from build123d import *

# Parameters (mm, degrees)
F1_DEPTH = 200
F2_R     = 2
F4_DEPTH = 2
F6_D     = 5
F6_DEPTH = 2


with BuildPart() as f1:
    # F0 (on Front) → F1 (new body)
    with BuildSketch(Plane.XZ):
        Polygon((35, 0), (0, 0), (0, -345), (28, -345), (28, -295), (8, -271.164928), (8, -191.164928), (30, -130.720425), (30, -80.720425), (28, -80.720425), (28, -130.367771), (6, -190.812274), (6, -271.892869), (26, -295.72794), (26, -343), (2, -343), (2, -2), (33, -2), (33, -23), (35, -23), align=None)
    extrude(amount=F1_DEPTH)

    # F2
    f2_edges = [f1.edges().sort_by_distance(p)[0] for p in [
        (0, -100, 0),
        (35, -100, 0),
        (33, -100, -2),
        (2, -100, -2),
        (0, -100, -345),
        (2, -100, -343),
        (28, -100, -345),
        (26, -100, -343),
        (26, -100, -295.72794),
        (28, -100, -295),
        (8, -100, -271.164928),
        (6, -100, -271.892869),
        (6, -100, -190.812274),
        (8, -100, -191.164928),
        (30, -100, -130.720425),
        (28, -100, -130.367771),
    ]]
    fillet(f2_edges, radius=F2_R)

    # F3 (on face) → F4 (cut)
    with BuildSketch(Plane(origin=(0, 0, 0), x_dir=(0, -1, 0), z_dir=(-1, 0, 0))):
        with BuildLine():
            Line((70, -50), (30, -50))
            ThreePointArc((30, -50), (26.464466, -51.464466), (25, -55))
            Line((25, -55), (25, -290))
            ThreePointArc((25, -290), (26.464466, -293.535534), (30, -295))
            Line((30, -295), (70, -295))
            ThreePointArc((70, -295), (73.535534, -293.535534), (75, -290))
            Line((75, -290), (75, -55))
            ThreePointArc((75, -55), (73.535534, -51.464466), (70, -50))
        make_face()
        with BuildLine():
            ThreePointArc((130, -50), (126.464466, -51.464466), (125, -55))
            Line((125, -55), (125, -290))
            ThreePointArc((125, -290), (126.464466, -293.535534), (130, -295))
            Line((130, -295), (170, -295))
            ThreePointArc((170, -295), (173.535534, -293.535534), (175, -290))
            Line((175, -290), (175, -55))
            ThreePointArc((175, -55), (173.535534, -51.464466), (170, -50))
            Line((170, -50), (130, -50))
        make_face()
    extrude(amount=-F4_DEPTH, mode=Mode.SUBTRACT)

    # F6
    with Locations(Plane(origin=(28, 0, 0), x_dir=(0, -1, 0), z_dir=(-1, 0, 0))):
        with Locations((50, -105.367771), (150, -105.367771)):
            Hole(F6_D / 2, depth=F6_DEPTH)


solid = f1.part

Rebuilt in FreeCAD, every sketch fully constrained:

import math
import FreeCAD as App
import Part
import Sketcher

V = App.Vector
Q = App.Units.Quantity


def edges_at(feature, points):
    """Names of the edges that pass closest to the given points."""
    edges = feature.Shape.Edges
    near = lambda p: min(range(len(edges)), key=lambda i: edges[i].distToShape(Part.Vertex(*p))[0])
    return sorted({f"Edge{near(p) + 1}" for p in points})

doc = App.newDocument("Part")
params = doc.addObject("Spreadsheet::Sheet", "Params")
for row, (alias, value) in enumerate([
    ("sketch1_width", "35 mm"),
    ("sketch1_width2", "28 mm"),
    ("sketch1_width3", "2 mm"),
    ("sketch1_width4", "24 mm"),
    ("sketch1_height", "345 mm"),
    ("pad1_length", "200 mm"),
    ("fillet_radius", "2 mm"),
    ("sketch2_radius", "5 mm"),
    ("sketch2_width", "40 mm"),
    ("sketch2_height", "235 mm"),
    ("pocket1_length", "2 mm"),
    ("sketch3_diameter", "5 mm"),
    ("hole_diameter", "5 mm"),
    ("hole_depth", "2 mm"),
], start=1):
    params.set(f"A{row}", alias)
    params.set(f"B{row}", "=" + value)
    params.setAlias(f"B{row}", alias)

body = doc.addObject("PartDesign::Body", "Body")

sketch1 = doc.addObject("Sketcher::SketchObject", "Sketch")
body.addObject(sketch1)
sketch1.AttachmentSupport = (doc.XZ_Plane, [""])
sketch1.MapMode = "FlatFace"
sketch1.addGeometry([
    Part.LineSegment(V(35, 0, 0), V(0, 0, 0)),
    Part.LineSegment(V(0, 0, 0), V(0, -345, 0)),
    Part.LineSegment(V(0, -345, 0), V(28, -345, 0)),
    Part.LineSegment(V(28, -345, 0), V(28, -295, 0)),
    Part.LineSegment(V(28, -295, 0), V(8, -271.2, 0)),
    Part.LineSegment(V(8, -271.2, 0), V(8, -191.2, 0)),
    Part.LineSegment(V(8, -191.2, 0), V(30, -130.7, 0)),
    Part.LineSegment(V(30, -130.7, 0), V(30, -80.7, 0)),
    Part.LineSegment(V(30, -80.7, 0), V(28, -80.7, 0)),
    Part.LineSegment(V(28, -80.7, 0), V(28, -130.4, 0)),
    Part.LineSegment(V(28, -130.4, 0), V(6, -190.8, 0)),
    Part.LineSegment(V(6, -190.8, 0), V(6, -271.9, 0)),
    Part.LineSegment(V(6, -271.9, 0), V(26, -295.7, 0)),
    Part.LineSegment(V(26, -295.7, 0), V(26, -343, 0)),
    Part.LineSegment(V(26, -343, 0), V(2, -343, 0)),
    Part.LineSegment(V(2, -343, 0), V(2, -2, 0)),
    Part.LineSegment(V(2, -2, 0), V(33, -2, 0)),
    Part.LineSegment(V(33, -2, 0), V(33, -23, 0)),
    Part.LineSegment(V(33, -23, 0), V(35, -23, 0)),
    Part.LineSegment(V(35, -23, 0), V(35, 0, 0)),
], False)
sketch1.addConstraint([
    Sketcher.Constraint("Coincident", 0, 2, 1, 1),
    Sketcher.Constraint("Coincident", 1, 2, 2, 1),
    Sketcher.Constraint("Coincident", 2, 2, 3, 1),
    Sketcher.Constraint("Coincident", 3, 2, 4, 1),
    Sketcher.Constraint("Coincident", 4, 2, 5, 1),
    Sketcher.Constraint("Coincident", 5, 2, 6, 1),
    Sketcher.Constraint("Coincident", 6, 2, 7, 1),
    Sketcher.Constraint("Coincident", 7, 2, 8, 1),
    Sketcher.Constraint("Coincident", 8, 2, 9, 1),
    Sketcher.Constraint("Coincident", 9, 2, 10, 1),
    Sketcher.Constraint("Coincident", 10, 2, 11, 1),
    Sketcher.Constraint("Coincident", 11, 2, 12, 1),
    Sketcher.Constraint("Coincident", 12, 2, 13, 1),
    Sketcher.Constraint("Coincident", 13, 2, 14, 1),
    Sketcher.Constraint("Coincident", 14, 2, 15, 1),
    Sketcher.Constraint("Coincident", 15, 2, 16, 1),
    Sketcher.Constraint("Coincident", 16, 2, 17, 1),
    Sketcher.Constraint("Coincident", 17, 2, 18, 1),
    Sketcher.Constraint("Coincident", 18, 2, 19, 1),
    Sketcher.Constraint("Coincident", 19, 2, 0, 1),
    Sketcher.Constraint("Horizontal", 0),
    Sketcher.Constraint("Vertical", 1),
    Sketcher.Constraint("Horizontal", 2),
    Sketcher.Constraint("Vertical", 3),
    Sketcher.Constraint("Vertical", 5),
    Sketcher.Constraint("Vertical", 7),
    Sketcher.Constraint("Horizontal", 8),
    Sketcher.Constraint("Vertical", 9),
    Sketcher.Constraint("Vertical", 11),
    Sketcher.Constraint("Vertical", 13),
    Sketcher.Constraint("Horizontal", 14),
    Sketcher.Constraint("Vertical", 15),
    Sketcher.Constraint("Horizontal", 16),
    Sketcher.Constraint("Vertical", 17),
    Sketcher.Constraint("Horizontal", 18),
    Sketcher.Constraint("Vertical", 19),
    Sketcher.Constraint("Coincident", 0, 2, -1, 1),
    Sketcher.Constraint("Parallel", 6, 10),
    Sketcher.Constraint("Parallel", 4, 12),
    Sketcher.Constraint("Vertical", 3, 2, 8, 2),
    Sketcher.Constraint("Equal", 8, 18),
    Sketcher.Constraint("Equal", 3, 7),
    Sketcher.Constraint("Equal", 6, 10),
    Sketcher.Constraint("Equal", 4, 12),
    Sketcher.Constraint("DistanceX", 0, 2, 0, 1, Q("35 mm")),
    Sketcher.Constraint("DistanceX", 2, 1, 2, 2, Q("28 mm")),
    Sketcher.Constraint("DistanceX", 8, 2, 8, 1, Q("2 mm")),
    Sketcher.Constraint("DistanceX", 14, 2, 14, 1, Q("24 mm")),
    Sketcher.Constraint("DistanceY", 1, 2, 1, 1, Q("345 mm")),
    Sketcher.Constraint("DistanceY", 3, 1, 3, 2, Q("50 mm")),
    Sketcher.Constraint("DistanceY", 5, 1, 5, 2, Q("80 mm")),
    Sketcher.Constraint("DistanceY", 15, 1, 15, 2, Q("341 mm")),
    Sketcher.Constraint("DistanceY", 17, 2, 17, 1, Q("21 mm")),
    Sketcher.Constraint("DistanceY", 19, 1, 19, 2, Q("23 mm")),
    Sketcher.Constraint("Angle", 4, Q("130 deg")),
    Sketcher.Constraint("Angle", 6, Q("70 deg")),
    Sketcher.Constraint("DistanceX", -1, 1, 4, 2, Q("8 mm")),
    Sketcher.Constraint("DistanceY", 13, 2, 13, 1, Q("47.27206 mm")),
    Sketcher.Constraint("DistanceY", 9, 2, 9, 1, Q("49.647346 mm")),
])
sketch1.setExpression("Constraints[44]", "Params.sketch1_width")
sketch1.setExpression("Constraints[45]", "Params.sketch1_width2")
sketch1.setExpression("Constraints[46]", "Params.sketch1_width3")
sketch1.setExpression("Constraints[47]", "Params.sketch1_width4")
sketch1.setExpression("Constraints[48]", "Params.sketch1_height")
pad1 = doc.addObject("PartDesign::Pad", "Pad")
body.addObject(pad1)
pad1.Profile = sketch1
pad1.setExpression("Length", "Params.pad1_length")
doc.recompute()

fillet = doc.addObject("PartDesign::Fillet", "Fillet")
body.addObject(fillet)
fillet.Base = (pad1, edges_at(pad1, [
    (0, -100, 0),
    (35, -100, 0),
    (33, -100, -2),
    (2, -100, -2),
    (0, -100, -345),
    (2, -100, -343),
    (28, -100, -345),
    (26, -100, -343),
    (26, -100, -295.728),
    (28, -100, -295),
    (8, -100, -271.165),
    (6, -100, -271.893),
    (6, -100, -190.812),
    (8, -100, -191.165),
    (30, -100, -130.72),
    (28, -100, -130.368),
]))
fillet.setExpression("Radius", "Params.fillet_radius")

sketch2 = doc.addObject("Sketcher::SketchObject", "Sketch001")
body.addObject(sketch2)
sketch2.AttachmentSupport = (doc.YZ_Plane, [""])
sketch2.MapMode = "FlatFace"
sketch2.addGeometry([
    Part.LineSegment(V(-70, -50, 0), V(-30, -50, 0)),
    Part.ArcOfCircle(Part.Circle(V(-30, -55, 0), V(0, 0, 1), 5), math.radians(0), math.radians(90)),
    Part.LineSegment(V(-25, -55, 0), V(-25, -290, 0)),
    Part.ArcOfCircle(Part.Circle(V(-30, -290, 0), V(0, 0, 1), 5), math.radians(-90), math.radians(0)),
    Part.LineSegment(V(-30, -295, 0), V(-70, -295, 0)),
    Part.ArcOfCircle(Part.Circle(V(-70, -290, 0), V(0, 0, 1), 5), math.radians(180), math.radians(270)),
    Part.LineSegment(V(-75, -290, 0), V(-75, -55, 0)),
    Part.ArcOfCircle(Part.Circle(V(-70, -55, 0), V(0, 0, 1), 5), math.radians(90), math.radians(180)),
    Part.ArcOfCircle(Part.Circle(V(-130, -55, 0), V(0, 0, 1), 5), math.radians(0), math.radians(90)),
    Part.LineSegment(V(-125, -55, 0), V(-125, -290, 0)),
    Part.ArcOfCircle(Part.Circle(V(-130, -290, 0), V(0, 0, 1), 5), math.radians(-90), math.radians(0)),
    Part.LineSegment(V(-130, -295, 0), V(-170, -295, 0)),
    Part.ArcOfCircle(Part.Circle(V(-170, -290, 0), V(0, 0, 1), 5), math.radians(180), math.radians(270)),
    Part.LineSegment(V(-175, -290, 0), V(-175, -55, 0)),
    Part.ArcOfCircle(Part.Circle(V(-170, -55, 0), V(0, 0, 1), 5), math.radians(90), math.radians(180)),
    Part.LineSegment(V(-170, -50, 0), V(-130, -50, 0)),
], False)
sketch2.addConstraint([
    Sketcher.Constraint("Tangent", 0, 2, 1, 2),
    Sketcher.Constraint("Tangent", 1, 1, 2, 1),
    Sketcher.Constraint("Tangent", 2, 2, 3, 2),
    Sketcher.Constraint("Tangent", 3, 1, 4, 1),
    Sketcher.Constraint("Tangent", 4, 2, 5, 2),
    Sketcher.Constraint("Tangent", 5, 1, 6, 1),
    Sketcher.Constraint("Tangent", 6, 2, 7, 2),
    Sketcher.Constraint("Tangent", 7, 1, 0, 1),
    Sketcher.Constraint("Tangent", 8, 1, 9, 1),
    Sketcher.Constraint("Tangent", 9, 2, 10, 2),
    Sketcher.Constraint("Tangent", 10, 1, 11, 1),
    Sketcher.Constraint("Tangent", 11, 2, 12, 2),
    Sketcher.Constraint("Tangent", 12, 1, 13, 1),
    Sketcher.Constraint("Tangent", 13, 2, 14, 2),
    Sketcher.Constraint("Tangent", 14, 1, 15, 1),
    Sketcher.Constraint("Tangent", 15, 2, 8, 2),
    Sketcher.Constraint("Horizontal", 0),
    Sketcher.Constraint("Vertical", 2),
    Sketcher.Constraint("Horizontal", 4),
    Sketcher.Constraint("Vertical", 6),
    Sketcher.Constraint("Vertical", 9),
    Sketcher.Constraint("Horizontal", 11),
    Sketcher.Constraint("Vertical", 13),
    Sketcher.Constraint("Horizontal", 15),
    Sketcher.Constraint("Equal", 1, 3),
    Sketcher.Constraint("Equal", 3, 5),
    Sketcher.Constraint("Equal", 5, 7),
    Sketcher.Constraint("Equal", 7, 8),
    Sketcher.Constraint("Equal", 8, 10),
    Sketcher.Constraint("Equal", 10, 12),
    Sketcher.Constraint("Equal", 12, 14),
    Sketcher.Constraint("Horizontal", 7, 3, 8, 3),
    Sketcher.Constraint("Horizontal", 5, 3, 10, 3),
    Sketcher.Constraint("Equal", 4, 11),
    Sketcher.Constraint("Radius", 1, Q("5 mm")),
    Sketcher.Constraint("DistanceX", 0, 1, 0, 2, Q("40 mm")),
    Sketcher.Constraint("DistanceY", 2, 2, 2, 1, Q("235 mm")),
    Sketcher.Constraint("DistanceX", 1, 3, -1, 1, Q("30 mm")),
    Sketcher.Constraint("DistanceY", 1, 3, -1, 1, Q("55 mm")),
    Sketcher.Constraint("DistanceX", 8, 3, -1, 1, Q("130 mm")),
])
sketch2.setExpression("Constraints[34]", "Params.sketch2_radius")
sketch2.setExpression("Constraints[35]", "Params.sketch2_width")
sketch2.setExpression("Constraints[36]", "Params.sketch2_height")
pocket1 = doc.addObject("PartDesign::Pocket", "Pocket")
body.addObject(pocket1)
pocket1.Profile = sketch2
pocket1.setExpression("Length", "Params.pocket1_length")
pocket1.Reversed = True

sketch3 = doc.addObject("Sketcher::SketchObject", "Sketch002")
body.addObject(sketch3)
sketch3.AttachmentSupport = (doc.YZ_Plane, [""])
sketch3.MapMode = "FlatFace"
sketch3.AttachmentOffset = App.Placement(V(0, 0, 28), App.Rotation())
sketch3.addGeometry([
    Part.Circle(V(-50, -105.4, 0), V(0, 0, 1), 2.5),
    Part.Circle(V(-150, -105.4, 0), V(0, 0, 1), 2.5),
], False)
sketch3.addConstraint([
    Sketcher.Constraint("Equal", 0, 1),
    Sketcher.Constraint("Horizontal", 0, 3, 1, 3),
    Sketcher.Constraint("Diameter", 0, Q("5 mm")),
    Sketcher.Constraint("DistanceX", 0, 3, -1, 1, Q("50 mm")),
    Sketcher.Constraint("DistanceX", 1, 3, -1, 1, Q("150 mm")),
    Sketcher.Constraint("DistanceY", 0, 3, -1, 1, Q("105.367771 mm")),
])
sketch3.setExpression("Constraints[2]", "Params.sketch3_diameter")
doc.recompute()
hole = doc.addObject("PartDesign::Hole", "Hole")
body.addObject(hole)
hole.Profile = sketch3
hole.ThreadType = "None"
hole.setExpression("Diameter", "Params.hole_diameter")
hole.DepthType = "Dimension"
hole.setExpression("Depth", "Params.hole_depth")
hole.DrillPoint = "Flat"
hole.Reversed = True

doc.recompute()
